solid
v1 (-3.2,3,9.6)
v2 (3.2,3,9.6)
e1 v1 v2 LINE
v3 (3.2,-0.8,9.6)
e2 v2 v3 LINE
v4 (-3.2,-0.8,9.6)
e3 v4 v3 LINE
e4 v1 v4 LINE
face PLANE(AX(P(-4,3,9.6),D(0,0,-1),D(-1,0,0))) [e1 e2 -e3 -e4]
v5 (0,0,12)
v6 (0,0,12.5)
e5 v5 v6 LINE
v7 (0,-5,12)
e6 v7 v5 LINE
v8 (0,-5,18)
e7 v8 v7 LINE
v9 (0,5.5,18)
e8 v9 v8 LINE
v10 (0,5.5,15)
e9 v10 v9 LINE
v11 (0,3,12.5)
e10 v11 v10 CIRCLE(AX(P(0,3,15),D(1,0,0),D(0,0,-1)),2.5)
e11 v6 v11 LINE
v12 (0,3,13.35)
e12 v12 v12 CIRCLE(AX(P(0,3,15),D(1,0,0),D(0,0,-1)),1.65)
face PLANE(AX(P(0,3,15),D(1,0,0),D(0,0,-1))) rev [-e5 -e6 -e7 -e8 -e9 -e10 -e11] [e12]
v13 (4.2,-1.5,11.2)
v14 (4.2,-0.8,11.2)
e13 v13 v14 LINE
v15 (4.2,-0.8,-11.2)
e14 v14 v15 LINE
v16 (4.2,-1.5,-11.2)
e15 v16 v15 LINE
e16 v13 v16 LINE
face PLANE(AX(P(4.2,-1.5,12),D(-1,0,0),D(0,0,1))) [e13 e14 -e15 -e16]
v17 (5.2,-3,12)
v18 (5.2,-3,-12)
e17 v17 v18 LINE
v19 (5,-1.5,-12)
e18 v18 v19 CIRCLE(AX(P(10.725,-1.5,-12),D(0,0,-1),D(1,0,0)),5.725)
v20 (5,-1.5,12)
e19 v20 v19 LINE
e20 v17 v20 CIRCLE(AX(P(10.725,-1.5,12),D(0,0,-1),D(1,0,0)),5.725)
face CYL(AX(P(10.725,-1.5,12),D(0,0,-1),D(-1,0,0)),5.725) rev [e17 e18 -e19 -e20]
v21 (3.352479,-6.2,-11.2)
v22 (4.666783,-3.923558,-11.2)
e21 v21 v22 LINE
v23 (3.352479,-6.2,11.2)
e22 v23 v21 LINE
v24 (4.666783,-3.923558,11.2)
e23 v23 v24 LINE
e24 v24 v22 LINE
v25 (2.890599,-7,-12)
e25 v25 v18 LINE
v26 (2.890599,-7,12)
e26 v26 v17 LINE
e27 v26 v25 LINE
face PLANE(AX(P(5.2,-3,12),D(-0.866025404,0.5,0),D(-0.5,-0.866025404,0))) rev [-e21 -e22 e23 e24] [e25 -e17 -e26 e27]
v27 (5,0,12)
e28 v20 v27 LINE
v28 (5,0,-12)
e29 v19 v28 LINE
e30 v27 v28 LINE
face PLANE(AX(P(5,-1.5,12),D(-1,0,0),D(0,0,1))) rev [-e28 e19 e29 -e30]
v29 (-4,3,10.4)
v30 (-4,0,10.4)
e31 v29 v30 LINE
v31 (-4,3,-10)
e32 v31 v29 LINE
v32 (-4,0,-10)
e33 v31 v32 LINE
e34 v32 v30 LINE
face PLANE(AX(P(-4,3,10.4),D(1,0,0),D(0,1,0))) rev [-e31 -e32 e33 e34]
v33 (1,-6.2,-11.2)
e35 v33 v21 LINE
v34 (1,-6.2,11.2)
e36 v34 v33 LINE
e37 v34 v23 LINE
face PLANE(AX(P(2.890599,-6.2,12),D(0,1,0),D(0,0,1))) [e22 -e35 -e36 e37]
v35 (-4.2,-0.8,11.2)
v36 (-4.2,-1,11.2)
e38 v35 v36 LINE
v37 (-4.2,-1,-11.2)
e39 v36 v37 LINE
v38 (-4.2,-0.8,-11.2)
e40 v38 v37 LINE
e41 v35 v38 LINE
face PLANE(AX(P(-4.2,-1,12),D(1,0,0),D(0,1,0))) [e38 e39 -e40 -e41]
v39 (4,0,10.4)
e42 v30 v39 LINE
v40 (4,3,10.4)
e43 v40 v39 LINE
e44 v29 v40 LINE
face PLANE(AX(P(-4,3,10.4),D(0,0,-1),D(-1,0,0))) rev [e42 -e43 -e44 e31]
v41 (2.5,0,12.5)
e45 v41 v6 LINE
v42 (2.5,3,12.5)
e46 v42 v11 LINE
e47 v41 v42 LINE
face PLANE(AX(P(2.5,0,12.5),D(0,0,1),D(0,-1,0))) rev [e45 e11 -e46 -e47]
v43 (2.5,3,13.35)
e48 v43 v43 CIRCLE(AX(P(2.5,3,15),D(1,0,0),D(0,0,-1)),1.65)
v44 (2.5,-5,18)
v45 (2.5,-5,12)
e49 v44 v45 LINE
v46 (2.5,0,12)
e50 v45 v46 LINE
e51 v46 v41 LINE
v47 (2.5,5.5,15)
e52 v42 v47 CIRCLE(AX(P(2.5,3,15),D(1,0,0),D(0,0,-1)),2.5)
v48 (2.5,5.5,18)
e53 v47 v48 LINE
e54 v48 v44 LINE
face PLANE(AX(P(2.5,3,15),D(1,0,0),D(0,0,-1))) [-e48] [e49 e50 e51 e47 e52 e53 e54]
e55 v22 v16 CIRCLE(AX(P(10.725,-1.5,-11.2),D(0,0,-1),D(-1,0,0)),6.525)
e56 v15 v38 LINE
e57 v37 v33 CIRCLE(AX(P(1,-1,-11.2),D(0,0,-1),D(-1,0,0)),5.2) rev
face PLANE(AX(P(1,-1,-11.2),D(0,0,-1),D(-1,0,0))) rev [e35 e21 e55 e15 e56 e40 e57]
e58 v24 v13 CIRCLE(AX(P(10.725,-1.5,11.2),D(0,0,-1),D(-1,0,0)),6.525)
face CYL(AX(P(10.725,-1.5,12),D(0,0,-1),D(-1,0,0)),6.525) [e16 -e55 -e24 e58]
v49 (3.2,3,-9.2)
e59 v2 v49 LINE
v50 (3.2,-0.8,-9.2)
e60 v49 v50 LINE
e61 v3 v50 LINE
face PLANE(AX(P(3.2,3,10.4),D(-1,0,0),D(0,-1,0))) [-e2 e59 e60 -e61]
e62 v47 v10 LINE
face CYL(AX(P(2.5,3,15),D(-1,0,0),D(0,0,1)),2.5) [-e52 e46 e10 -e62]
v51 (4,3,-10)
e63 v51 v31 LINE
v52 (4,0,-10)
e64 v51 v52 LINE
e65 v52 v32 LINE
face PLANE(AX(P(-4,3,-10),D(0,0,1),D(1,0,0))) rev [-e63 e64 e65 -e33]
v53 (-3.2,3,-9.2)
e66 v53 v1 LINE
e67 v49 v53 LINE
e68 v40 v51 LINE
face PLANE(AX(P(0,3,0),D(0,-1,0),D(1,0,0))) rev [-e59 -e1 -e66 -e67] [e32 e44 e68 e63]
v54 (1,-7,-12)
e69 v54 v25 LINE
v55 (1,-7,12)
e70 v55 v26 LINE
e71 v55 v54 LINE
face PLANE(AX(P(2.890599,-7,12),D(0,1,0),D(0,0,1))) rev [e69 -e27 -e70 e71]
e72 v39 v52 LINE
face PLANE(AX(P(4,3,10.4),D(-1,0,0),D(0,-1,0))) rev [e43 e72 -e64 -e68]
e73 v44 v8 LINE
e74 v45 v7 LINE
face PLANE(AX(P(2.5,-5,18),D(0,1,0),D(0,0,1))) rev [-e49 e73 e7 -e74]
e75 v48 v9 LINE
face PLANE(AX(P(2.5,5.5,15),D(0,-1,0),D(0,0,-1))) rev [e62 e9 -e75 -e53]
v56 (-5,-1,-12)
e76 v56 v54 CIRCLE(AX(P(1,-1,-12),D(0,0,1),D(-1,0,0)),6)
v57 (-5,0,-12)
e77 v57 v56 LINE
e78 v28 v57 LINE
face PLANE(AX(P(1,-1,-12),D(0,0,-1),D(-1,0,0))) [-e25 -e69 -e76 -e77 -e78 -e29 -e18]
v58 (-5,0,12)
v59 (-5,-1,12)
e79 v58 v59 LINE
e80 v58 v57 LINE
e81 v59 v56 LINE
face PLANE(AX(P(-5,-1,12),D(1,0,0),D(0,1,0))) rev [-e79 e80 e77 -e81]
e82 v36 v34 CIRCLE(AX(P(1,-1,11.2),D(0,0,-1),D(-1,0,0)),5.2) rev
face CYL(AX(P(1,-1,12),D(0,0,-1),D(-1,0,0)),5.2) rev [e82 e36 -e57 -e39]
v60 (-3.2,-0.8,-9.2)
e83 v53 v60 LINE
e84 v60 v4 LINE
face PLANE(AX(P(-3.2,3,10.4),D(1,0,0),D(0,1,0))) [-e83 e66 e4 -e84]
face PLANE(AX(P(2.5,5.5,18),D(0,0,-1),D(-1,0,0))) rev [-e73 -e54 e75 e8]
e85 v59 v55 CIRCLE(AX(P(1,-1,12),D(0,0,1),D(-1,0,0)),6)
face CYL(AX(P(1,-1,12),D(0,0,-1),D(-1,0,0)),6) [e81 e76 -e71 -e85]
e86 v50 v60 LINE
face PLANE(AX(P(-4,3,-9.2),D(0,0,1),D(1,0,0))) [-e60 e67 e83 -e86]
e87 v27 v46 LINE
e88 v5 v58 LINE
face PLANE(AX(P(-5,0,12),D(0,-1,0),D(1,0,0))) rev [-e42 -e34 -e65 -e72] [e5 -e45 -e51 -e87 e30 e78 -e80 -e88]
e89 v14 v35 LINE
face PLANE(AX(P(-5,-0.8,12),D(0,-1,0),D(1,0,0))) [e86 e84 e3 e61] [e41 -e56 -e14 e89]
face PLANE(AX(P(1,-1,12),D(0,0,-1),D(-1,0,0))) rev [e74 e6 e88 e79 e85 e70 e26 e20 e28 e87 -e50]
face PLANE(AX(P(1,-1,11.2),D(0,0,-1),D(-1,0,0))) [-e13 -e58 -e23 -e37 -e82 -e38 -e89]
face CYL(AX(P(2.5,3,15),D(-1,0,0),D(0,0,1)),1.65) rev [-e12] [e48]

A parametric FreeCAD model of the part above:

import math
import FreeCAD as App
import Part
import Sketcher

V = App.Vector
Q = App.Units.Quantity


def faces_at(feature, points):
    """Names of the faces that lie closest to the given points."""
    faces = feature.Shape.Faces
    near = lambda p: min(range(len(faces)), key=lambda i: faces[i].distToShape(Part.Vertex(*p))[0])
    return sorted({f"Face{near(p) + 1}" for p in points})


def add_polygon(sketch, points):
    """Adds a closed chain of lines whose ends are joined by coincident constraints."""
    first, n = sketch.GeometryCount, len(points)
    for a, b in zip(points, points[1:] + points[:1]):
        sketch.addGeometry(Part.LineSegment(App.Vector(*a, 0), App.Vector(*b, 0)), False)
    for i in range(n):
        sketch.addConstraint(Sketcher.Constraint("Coincident", first + i, 2, first + (i + 1) % n, 1))

doc = App.newDocument("Part")
body = doc.addObject("PartDesign::Body", "Body")

sketch1 = body.newObject("Sketcher::SketchObject", "Sketch")
sketch1.AttachmentSupport = (doc.getObject("XY_Plane"), [""])
sketch1.MapMode = "FlatFace"
sketch1.addGeometry([
    Part.LineSegment(V(5, 0, 0), V(-5, 0, 0)),
    Part.LineSegment(V(-5, 0, 0), V(-5, -1, 0)),
    Part.ArcOfCircle(Part.Circle(V(1, -1, 0), V(0, 0, 1), 6), math.radians(180), math.radians(270)),
    Part.LineSegment(V(1, -7, 0), V(2.9, -7, 0)),
    Part.LineSegment(V(2.9, -7, 0), V(5.2, -3, 0)),
    Part.ArcOfCircle(Part.Circle(V(10.7, -1.5, 0), V(0, 0, 1), 5.7), math.radians(-180), math.radians(-164.81)),
    Part.LineSegment(V(5, -1.5, 0), V(5, 0, 0)),
], False)
sketch1.addConstraint([
    Sketcher.Constraint("Coincident", 0, 2, 1, 1),
    Sketcher.Constraint("Tangent", 1, 2, 2, 1),
    Sketcher.Constraint("Tangent", 2, 2, 3, 1),
    Sketcher.Constraint("Coincident", 3, 2, 4, 1),
    Sketcher.Constraint("Coincident", 4, 2, 5, 2),
    Sketcher.Constraint("Tangent", 5, 1, 6, 1),
    Sketcher.Constraint("Coincident", 6, 2, 0, 1),
    Sketcher.Constraint("Horizontal", 0),
    Sketcher.Constraint("Vertical", 1),
    Sketcher.Constraint("Horizontal", 3),
    Sketcher.Constraint("Vertical", 6),
    Sketcher.Constraint("Symmetric", 0, 2, 6, 2, -1, 1),
    Sketcher.Constraint("Radius", 2, 6.0),
    Sketcher.Constraint("DistanceX", 0, 2, 0, 1, 10.0),
    Sketcher.Constraint("DistanceY", 1, 2, 1, 1, 1.0),
    Sketcher.Constraint("Angle", 4, Q("60 deg")),
    Sketcher.Constraint("DistanceY", 6, 1, 6, 2, 1.5),
    Sketcher.Constraint("DistanceY", 4, 2, -1, 1, 3.0),
    Sketcher.Constraint("Radius", 5, 5.725),
])
pad1 = body.newObject("PartDesign::Pad", "Pad")
pad1.Profile = sketch1
pad1.Length = 24
pad1.Midplane = True

sketch2 = body.newObject("Sketcher::SketchObject", "Sketch001")
sketch2.AttachmentSupport = (doc.getObject("XZ_Plane"), [""])
sketch2.MapMode = "FlatFace"
add_polygon(sketch2, [(-4, -10), (-4, 10), (4, 10), (4, -10)])
sketch2.addConstraint([
    Sketcher.Constraint("Vertical", 0),
    Sketcher.Constraint("Horizontal", 1),
    Sketcher.Constraint("Vertical", 2),
    Sketcher.Constraint("Horizontal", 3),
    Sketcher.Constraint("DistanceX", 1, 1, 1, 2, 8.0),
    Sketcher.Constraint("DistanceY", 0, 1, 0, 2, 20.4),
    Sketcher.Constraint("DistanceX", 0, 2, -1, 1, 4.0),
    Sketcher.Constraint("DistanceY", 2, 2, -1, 1, 10.0),
])
pad2 = body.newObject("PartDesign::Pad", "Pad001")
pad2.Profile = sketch2
pad2.Length = 3
pad2.Reversed = True
doc.recompute()

thickness = body.newObject("PartDesign::Thickness", "Thickness")
thickness.Base = (pad2, faces_at(pad2, [(4.045, -5, 0), (0, 3, 0.2)]))
thickness.Value = 0.8
thickness.Reversed = True
thickness.Join = "Intersection"

sketch3 = body.newObject("Sketcher::SketchObject", "Sketch002")
sketch3.AttachmentSupport = (doc.getObject("YZ_Plane"), [""])
sketch3.MapMode = "FlatFace"
sketch3.addGeometry([
    Part.LineSegment(V(0, 12, 0), V(0, 12.5, 0)),
    Part.LineSegment(V(0, 12.5, 0), V(3, 12.5, 0)),
    Part.ArcOfCircle(Part.Circle(V(3, 15, 0), V(0, 0, 1), 2.5), math.radians(-90), math.radians(0)),
    Part.LineSegment(V(5.5, 15, 0), V(5.5, 18, 0)),
    Part.LineSegment(V(5.5, 18, 0), V(-5, 18, 0)),
    Part.LineSegment(V(-5, 18, 0), V(-5, 12, 0)),
    Part.LineSegment(V(-5, 12, 0), V(0, 12, 0)),
    Part.Circle(V(3, 15, 0), V(0, 0, 1), 1.6),
], False)
sketch3.addConstraint([
    Sketcher.Constraint("Coincident", 0, 2, 1, 1),
    Sketcher.Constraint("Tangent", 1, 2, 2, 1),
    Sketcher.Constraint("Tangent", 2, 2, 3, 1),
    Sketcher.Constraint("Coincident", 3, 2, 4, 1),
    Sketcher.Constraint("Coincident", 4, 2, 5, 1),
    Sketcher.Constraint("Coincident", 5, 2, 6, 1),
    Sketcher.Constraint("Coincident", 6, 2, 0, 1),
    Sketcher.Constraint("Vertical", 0),
    Sketcher.Constraint("Horizontal", 1),
    Sketcher.Constraint("Vertical", 3),
    Sketcher.Constraint("Horizontal", 4),
    Sketcher.Constraint("Vertical", 5),
    Sketcher.Constraint("Horizontal", 6),
    Sketcher.Constraint("Coincident", 7, 3, 2, 3),
    Sketcher.Constraint("PointOnObject", 0, 2, -2),
    Sketcher.Constraint("Equal", 1, 3),
    Sketcher.Constraint("Diameter", 7, 3.3),
    Sketcher.Constraint("Radius", 2, 2.5),
    Sketcher.Constraint("DistanceX", 1, 1, 1, 2, 3.0),
    Sketcher.Constraint("DistanceX", 6, 1, 6, 2, 5.0),
    Sketcher.Constraint("DistanceY", 5, 2, 5, 1, 6.0),
    Sketcher.Constraint("DistanceY", -1, 1, 2, 3, 15.0),
])
pad3 = body.newObject("PartDesign::Pad", "Pad002")
pad3.Profile = sketch3
pad3.Length = 2.5

doc.recompute()
